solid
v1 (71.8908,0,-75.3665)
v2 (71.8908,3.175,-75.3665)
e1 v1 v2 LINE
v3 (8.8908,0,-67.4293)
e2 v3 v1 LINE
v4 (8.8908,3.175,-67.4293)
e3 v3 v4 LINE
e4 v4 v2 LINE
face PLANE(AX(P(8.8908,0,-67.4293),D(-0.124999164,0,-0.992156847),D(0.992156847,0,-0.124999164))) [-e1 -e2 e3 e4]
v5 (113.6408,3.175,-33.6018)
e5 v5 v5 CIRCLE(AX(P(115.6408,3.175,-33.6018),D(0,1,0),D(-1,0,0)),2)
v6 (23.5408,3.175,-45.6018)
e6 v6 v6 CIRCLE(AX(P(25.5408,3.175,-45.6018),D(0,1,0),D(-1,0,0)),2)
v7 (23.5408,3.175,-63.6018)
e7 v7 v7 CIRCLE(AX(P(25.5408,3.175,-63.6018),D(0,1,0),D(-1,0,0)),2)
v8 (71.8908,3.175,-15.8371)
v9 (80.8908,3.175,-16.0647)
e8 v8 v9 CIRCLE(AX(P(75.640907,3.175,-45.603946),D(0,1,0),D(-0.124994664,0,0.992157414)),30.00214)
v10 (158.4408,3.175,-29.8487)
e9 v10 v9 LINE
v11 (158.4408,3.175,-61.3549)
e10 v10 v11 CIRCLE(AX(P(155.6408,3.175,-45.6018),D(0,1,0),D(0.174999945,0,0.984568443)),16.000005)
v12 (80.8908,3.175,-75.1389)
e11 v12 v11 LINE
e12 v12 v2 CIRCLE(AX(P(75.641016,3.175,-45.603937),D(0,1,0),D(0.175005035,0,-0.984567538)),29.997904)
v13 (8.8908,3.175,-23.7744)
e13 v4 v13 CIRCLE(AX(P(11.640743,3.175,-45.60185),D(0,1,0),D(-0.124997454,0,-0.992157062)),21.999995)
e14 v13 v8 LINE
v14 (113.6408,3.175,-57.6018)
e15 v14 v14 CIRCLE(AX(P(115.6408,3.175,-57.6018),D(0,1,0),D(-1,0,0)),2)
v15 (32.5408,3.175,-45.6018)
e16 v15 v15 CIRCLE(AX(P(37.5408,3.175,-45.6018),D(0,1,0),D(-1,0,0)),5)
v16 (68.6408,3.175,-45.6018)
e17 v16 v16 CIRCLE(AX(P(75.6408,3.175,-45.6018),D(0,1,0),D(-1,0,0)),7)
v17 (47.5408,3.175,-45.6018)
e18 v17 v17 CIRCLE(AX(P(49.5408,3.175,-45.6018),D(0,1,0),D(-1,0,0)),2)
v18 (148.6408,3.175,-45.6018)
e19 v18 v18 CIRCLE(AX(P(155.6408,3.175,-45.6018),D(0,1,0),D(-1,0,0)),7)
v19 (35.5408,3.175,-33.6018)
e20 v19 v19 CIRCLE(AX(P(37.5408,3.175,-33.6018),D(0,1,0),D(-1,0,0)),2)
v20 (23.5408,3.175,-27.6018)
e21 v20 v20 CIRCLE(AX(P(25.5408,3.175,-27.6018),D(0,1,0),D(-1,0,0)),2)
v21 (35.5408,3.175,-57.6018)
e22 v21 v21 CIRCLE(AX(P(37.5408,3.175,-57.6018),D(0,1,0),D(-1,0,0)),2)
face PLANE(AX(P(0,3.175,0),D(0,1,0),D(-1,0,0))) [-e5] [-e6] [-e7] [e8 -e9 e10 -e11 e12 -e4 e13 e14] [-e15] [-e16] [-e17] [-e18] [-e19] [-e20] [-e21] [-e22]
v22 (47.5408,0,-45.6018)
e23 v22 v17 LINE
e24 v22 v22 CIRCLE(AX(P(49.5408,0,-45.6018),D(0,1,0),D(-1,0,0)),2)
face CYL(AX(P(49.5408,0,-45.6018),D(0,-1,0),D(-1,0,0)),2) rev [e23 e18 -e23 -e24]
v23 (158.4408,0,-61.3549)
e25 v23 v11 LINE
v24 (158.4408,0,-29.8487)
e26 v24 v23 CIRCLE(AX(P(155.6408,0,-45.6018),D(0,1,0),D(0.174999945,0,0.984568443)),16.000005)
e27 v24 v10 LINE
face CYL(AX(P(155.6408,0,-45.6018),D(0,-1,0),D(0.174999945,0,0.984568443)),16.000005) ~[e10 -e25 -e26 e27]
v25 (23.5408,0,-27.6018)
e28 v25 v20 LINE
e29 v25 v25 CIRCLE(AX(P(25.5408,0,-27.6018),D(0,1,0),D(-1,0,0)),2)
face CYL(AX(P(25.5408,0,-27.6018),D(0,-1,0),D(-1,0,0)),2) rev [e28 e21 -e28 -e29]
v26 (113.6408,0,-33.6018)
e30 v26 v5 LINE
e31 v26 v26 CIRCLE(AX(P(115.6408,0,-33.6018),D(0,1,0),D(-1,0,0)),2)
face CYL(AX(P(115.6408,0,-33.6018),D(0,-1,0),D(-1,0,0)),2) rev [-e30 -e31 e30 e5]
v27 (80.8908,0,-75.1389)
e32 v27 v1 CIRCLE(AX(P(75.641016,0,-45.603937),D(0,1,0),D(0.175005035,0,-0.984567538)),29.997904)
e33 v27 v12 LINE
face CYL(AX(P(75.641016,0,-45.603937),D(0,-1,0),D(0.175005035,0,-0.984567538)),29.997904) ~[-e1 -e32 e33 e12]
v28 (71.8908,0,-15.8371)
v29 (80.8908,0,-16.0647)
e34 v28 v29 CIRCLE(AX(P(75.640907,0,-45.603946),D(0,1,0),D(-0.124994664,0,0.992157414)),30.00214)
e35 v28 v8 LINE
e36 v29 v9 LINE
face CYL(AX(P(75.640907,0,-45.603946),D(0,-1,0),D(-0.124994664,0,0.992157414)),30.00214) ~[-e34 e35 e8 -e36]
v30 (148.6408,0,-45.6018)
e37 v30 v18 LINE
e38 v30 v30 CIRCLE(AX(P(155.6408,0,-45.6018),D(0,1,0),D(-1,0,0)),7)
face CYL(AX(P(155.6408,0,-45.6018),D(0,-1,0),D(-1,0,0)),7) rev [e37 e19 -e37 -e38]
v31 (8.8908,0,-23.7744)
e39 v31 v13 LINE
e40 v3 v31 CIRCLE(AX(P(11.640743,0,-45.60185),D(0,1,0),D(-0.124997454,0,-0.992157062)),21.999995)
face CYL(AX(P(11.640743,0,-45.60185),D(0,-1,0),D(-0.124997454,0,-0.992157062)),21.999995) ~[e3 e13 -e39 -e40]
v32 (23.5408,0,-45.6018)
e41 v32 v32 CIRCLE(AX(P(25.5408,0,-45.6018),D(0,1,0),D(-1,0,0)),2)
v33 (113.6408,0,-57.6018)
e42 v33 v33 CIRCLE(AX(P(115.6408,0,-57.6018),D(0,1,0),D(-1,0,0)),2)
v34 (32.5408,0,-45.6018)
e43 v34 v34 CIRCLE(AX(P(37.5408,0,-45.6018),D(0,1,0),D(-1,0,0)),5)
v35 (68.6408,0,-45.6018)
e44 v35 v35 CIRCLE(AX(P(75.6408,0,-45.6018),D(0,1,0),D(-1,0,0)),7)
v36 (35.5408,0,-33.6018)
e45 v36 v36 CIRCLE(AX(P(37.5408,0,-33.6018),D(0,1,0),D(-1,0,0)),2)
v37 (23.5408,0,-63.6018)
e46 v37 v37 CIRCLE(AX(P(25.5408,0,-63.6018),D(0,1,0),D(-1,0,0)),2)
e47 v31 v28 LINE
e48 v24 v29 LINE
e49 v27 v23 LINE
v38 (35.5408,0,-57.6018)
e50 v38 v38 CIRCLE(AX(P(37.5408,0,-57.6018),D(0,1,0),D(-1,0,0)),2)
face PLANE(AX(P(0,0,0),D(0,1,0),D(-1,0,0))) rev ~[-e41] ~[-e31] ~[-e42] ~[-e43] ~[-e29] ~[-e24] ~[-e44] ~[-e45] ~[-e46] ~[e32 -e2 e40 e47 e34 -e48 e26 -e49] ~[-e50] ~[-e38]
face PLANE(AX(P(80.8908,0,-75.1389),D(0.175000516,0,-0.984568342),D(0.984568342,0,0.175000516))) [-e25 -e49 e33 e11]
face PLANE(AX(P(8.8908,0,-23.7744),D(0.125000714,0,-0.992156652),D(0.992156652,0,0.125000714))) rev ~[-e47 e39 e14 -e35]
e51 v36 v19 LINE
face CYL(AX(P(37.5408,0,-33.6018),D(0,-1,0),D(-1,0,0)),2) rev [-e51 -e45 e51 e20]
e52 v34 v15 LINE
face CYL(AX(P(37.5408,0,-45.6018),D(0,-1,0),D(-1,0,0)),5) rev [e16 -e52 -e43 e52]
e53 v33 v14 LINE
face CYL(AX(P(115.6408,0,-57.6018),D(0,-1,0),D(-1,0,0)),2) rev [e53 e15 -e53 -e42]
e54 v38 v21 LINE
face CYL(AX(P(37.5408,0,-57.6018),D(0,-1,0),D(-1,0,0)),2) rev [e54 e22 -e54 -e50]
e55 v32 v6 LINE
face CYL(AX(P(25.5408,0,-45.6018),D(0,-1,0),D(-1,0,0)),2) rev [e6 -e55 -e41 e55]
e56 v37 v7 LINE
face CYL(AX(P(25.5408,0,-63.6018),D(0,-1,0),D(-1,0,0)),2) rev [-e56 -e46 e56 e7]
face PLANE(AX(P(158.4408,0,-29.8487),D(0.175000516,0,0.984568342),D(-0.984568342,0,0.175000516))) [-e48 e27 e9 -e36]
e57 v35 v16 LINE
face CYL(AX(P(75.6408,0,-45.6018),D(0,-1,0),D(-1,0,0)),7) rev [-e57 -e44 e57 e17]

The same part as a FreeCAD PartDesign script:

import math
import FreeCAD as App
import Part
import Sketcher
from FreeCAD import Vector

doc = App.newDocument("Part")
body = doc.addObject("PartDesign::Body", "Body")

sketch1 = body.newObject("Sketcher::SketchObject", "Sketch")
sketch1.AttachmentSupport = (doc.getObject("XZ_Plane"), [""])
sketch1.MapMode = "FlatFace"
sketch1.addGeometry([
    Part.LineSegment(Vector(80.8908, -16.0647, 0), Vector(158.4408, -29.8487, 0)),
    Part.ArcOfCircle(Part.Circle(Vector(155.6408, -45.6018, 0), Vector(0, 0, 1), 16.000005), math.radians(-79.921345), math.radians(79.921345)),
    Part.LineSegment(Vector(158.4408, -61.3549, 0), Vector(80.8908, -75.1389, 0)),
    Part.ArcOfCircle(Part.Circle(Vector(75.641016, -45.603937, 0), Vector(0, 0, 1), 29.997904), math.radians(-97.181675), math.radians(-79.921049)),
    Part.LineSegment(Vector(71.8908, -75.3665, 0), Vector(8.8908, -67.4293, 0)),
    Part.ArcOfCircle(Part.Circle(Vector(11.6408, -45.6018, 0), Vector(0, 0, 1), 22.000051), math.radians(97.180772), math.radians(262.819261)),
    Part.LineSegment(Vector(8.8908, -23.7744, 0), Vector(71.8908, -15.8371, 0)),
    Part.ArcOfCircle(Part.Circle(Vector(75.640907, -45.603946, 0), Vector(0, 0, 1), 30.00214), math.radians(79.922277), math.radians(97.180448)),
    Part.Circle(Vector(115.6408, -57.6018, 0), Vector(0, 0, 1), 2),
    Part.Circle(Vector(25.5408, -63.6018, 0), Vector(0, 0, 1), 2),
    Part.Circle(Vector(37.5408, -57.6018, 0), Vector(0, 0, 1), 2),
    Part.Circle(Vector(155.6408, -45.6018, 0), Vector(0, 0, 1), 7),
    Part.Circle(Vector(115.6408, -33.6018, 0), Vector(0, 0, 1), 2),
    Part.Circle(Vector(75.6408, -45.6018, 0), Vector(0, 0, 1), 7),
    Part.Circle(Vector(49.5408, -45.6018, 0), Vector(0, 0, 1), 2),
    Part.Circle(Vector(37.5408, -45.6018, 0), Vector(0, 0, 1), 5),
    Part.Circle(Vector(37.5408, -33.6018, 0), Vector(0, 0, 1), 2),
    Part.Circle(Vector(25.5408, -45.6018, 0), Vector(0, 0, 1), 2),
    Part.Circle(Vector(25.5408, -27.6018, 0), Vector(0, 0, 1), 2),
], False)
sketch1.addConstraint([
    Sketcher.Constraint("Coincident", 0, 2, 1, 2),
    Sketcher.Constraint("Coincident", 1, 1, 2, 1),
    Sketcher.Constraint("Coincident", 2, 2, 3, 2),
    Sketcher.Constraint("Coincident", 3, 1, 4, 1),
    Sketcher.Constraint("Coincident", 4, 2, 5, 2),
    Sketcher.Constraint("Coincident", 5, 1, 6, 1),
    Sketcher.Constraint("Coincident", 6, 2, 7, 2),
    Sketcher.Constraint("Coincident", 7, 1, 0, 1),
    Sketcher.Constraint("Coincident", 7, 3, 3, 3),
    Sketcher.Constraint("Coincident", 11, 3, 1, 3),
    Sketcher.Constraint("Diameter", 8, 4.0),
    Sketcher.Constraint("Diameter", 9, 4.0),
    Sketcher.Constraint("Diameter", 10, 4.0),
    Sketcher.Constraint("Diameter", 11, 14.0),
    Sketcher.Constraint("Diameter", 12, 4.0),
    Sketcher.Constraint("Diameter", 13, 14.0),
    Sketcher.Constraint("Diameter", 14, 4.0),
    Sketcher.Constraint("Diameter", 15, 10.0),
    Sketcher.Constraint("Diameter", 16, 4.0),
    Sketcher.Constraint("Diameter", 17, 4.0),
    Sketcher.Constraint("Diameter", 18, 4.0),
    Sketcher.Constraint("Radius", 1, 16.0),
    Sketcher.Constraint("Radius", 5, 22.0),
    Sketcher.Constraint("DistanceX", 5, 3, 7, 3, 64.0),
    Sketcher.Constraint("DistanceX", 7, 3, 1, 3, 80.0),
    Sketcher.Constraint("DistanceX", 7, 3, 8, 3, 40.0),
    Sketcher.Constraint("DistanceY", 8, 3, 1, 3, 12.0),
    Sketcher.Constraint("DistanceY", 8, 3, 5, 3, 12.0),
    Sketcher.Constraint("DistanceY", 9, 3, 5, 3, 18.0),
    Sketcher.Constraint("DistanceX", 9, 3, 10, 3, 12.0),
    Sketcher.Constraint("DistanceY", 10, 3, 5, 3, 12.0),
    Sketcher.Constraint("DistanceY", 8, 3, 12, 3, 24.0),
    Sketcher.Constraint("DistanceX", 12, 3, 1, 3, 40.0),
    Sketcher.Constraint("DistanceY", 10, 3, 13, 3, 12.0),
    Sketcher.Constraint("DistanceX", 13, 3, 8, 3, 40.0),
    Sketcher.Constraint("DistanceX", 10, 3, 14, 3, 12.0),
    Sketcher.Constraint("DistanceY", 10, 3, 14, 3, 12.0),
    Sketcher.Constraint("DistanceY", 10, 3, 15, 3, 12.0),
    Sketcher.Constraint("DistanceX", 15, 3, 14, 3, 12.0),
    Sketcher.Constraint("DistanceY", 15, 3, 16, 3, 12.0),
    Sketcher.Constraint("DistanceX", 16, 3, 14, 3, 12.0),
    Sketcher.Constraint("DistanceX", 17, 3, 15, 3, 12.0),
    Sketcher.Constraint("DistanceY", 10, 3, 17, 3, 12.0),
    Sketcher.Constraint("DistanceX", 18, 3, 16, 3, 12.0),
    Sketcher.Constraint("DistanceY", 17, 3, 18, 3, 18.0),
    Sketcher.Constraint("Radius", 3, 29.998),
    Sketcher.Constraint("DistanceX", 3, 1, 2, 2, 9.0),
    Sketcher.Constraint("DistanceX", 6, 2, 7, 1, 9.0),
    Sketcher.Constraint("Radius", 7, 30.0021),
    Sketcher.Constraint("DistanceX", 5, 3, 9, 3, 13.9),
    Sketcher.Constraint("DistanceX", 1, 3, 0, 2, 2.8),
    Sketcher.Constraint("DistanceX", 1, 3, 1, 1, 2.8),
    Sketcher.Constraint("DistanceX", 7, 3, 2, 2, 5.25),
    Sketcher.Constraint("DistanceX", 4, 2, 9, 3, 16.65),
    Sketcher.Constraint("DistanceX", 5, 1, 18, 3, 16.65),
    Sketcher.Constraint("DistanceX", 6, 2, 13, 3, 3.75),
    Sketcher.Constraint("Distance", 4, 63.498),
    Sketcher.Constraint("DistanceX", -1, 1, 3, 3, 75.641),
    Sketcher.Constraint("DistanceY", 3, 3, -1, 1, 45.604),
])
pad1 = body.newObject("PartDesign::Pad", "Pad")
pad1.Profile = sketch1
pad1.Length = 3.175
pad1.Reversed = True

doc.recompute()
